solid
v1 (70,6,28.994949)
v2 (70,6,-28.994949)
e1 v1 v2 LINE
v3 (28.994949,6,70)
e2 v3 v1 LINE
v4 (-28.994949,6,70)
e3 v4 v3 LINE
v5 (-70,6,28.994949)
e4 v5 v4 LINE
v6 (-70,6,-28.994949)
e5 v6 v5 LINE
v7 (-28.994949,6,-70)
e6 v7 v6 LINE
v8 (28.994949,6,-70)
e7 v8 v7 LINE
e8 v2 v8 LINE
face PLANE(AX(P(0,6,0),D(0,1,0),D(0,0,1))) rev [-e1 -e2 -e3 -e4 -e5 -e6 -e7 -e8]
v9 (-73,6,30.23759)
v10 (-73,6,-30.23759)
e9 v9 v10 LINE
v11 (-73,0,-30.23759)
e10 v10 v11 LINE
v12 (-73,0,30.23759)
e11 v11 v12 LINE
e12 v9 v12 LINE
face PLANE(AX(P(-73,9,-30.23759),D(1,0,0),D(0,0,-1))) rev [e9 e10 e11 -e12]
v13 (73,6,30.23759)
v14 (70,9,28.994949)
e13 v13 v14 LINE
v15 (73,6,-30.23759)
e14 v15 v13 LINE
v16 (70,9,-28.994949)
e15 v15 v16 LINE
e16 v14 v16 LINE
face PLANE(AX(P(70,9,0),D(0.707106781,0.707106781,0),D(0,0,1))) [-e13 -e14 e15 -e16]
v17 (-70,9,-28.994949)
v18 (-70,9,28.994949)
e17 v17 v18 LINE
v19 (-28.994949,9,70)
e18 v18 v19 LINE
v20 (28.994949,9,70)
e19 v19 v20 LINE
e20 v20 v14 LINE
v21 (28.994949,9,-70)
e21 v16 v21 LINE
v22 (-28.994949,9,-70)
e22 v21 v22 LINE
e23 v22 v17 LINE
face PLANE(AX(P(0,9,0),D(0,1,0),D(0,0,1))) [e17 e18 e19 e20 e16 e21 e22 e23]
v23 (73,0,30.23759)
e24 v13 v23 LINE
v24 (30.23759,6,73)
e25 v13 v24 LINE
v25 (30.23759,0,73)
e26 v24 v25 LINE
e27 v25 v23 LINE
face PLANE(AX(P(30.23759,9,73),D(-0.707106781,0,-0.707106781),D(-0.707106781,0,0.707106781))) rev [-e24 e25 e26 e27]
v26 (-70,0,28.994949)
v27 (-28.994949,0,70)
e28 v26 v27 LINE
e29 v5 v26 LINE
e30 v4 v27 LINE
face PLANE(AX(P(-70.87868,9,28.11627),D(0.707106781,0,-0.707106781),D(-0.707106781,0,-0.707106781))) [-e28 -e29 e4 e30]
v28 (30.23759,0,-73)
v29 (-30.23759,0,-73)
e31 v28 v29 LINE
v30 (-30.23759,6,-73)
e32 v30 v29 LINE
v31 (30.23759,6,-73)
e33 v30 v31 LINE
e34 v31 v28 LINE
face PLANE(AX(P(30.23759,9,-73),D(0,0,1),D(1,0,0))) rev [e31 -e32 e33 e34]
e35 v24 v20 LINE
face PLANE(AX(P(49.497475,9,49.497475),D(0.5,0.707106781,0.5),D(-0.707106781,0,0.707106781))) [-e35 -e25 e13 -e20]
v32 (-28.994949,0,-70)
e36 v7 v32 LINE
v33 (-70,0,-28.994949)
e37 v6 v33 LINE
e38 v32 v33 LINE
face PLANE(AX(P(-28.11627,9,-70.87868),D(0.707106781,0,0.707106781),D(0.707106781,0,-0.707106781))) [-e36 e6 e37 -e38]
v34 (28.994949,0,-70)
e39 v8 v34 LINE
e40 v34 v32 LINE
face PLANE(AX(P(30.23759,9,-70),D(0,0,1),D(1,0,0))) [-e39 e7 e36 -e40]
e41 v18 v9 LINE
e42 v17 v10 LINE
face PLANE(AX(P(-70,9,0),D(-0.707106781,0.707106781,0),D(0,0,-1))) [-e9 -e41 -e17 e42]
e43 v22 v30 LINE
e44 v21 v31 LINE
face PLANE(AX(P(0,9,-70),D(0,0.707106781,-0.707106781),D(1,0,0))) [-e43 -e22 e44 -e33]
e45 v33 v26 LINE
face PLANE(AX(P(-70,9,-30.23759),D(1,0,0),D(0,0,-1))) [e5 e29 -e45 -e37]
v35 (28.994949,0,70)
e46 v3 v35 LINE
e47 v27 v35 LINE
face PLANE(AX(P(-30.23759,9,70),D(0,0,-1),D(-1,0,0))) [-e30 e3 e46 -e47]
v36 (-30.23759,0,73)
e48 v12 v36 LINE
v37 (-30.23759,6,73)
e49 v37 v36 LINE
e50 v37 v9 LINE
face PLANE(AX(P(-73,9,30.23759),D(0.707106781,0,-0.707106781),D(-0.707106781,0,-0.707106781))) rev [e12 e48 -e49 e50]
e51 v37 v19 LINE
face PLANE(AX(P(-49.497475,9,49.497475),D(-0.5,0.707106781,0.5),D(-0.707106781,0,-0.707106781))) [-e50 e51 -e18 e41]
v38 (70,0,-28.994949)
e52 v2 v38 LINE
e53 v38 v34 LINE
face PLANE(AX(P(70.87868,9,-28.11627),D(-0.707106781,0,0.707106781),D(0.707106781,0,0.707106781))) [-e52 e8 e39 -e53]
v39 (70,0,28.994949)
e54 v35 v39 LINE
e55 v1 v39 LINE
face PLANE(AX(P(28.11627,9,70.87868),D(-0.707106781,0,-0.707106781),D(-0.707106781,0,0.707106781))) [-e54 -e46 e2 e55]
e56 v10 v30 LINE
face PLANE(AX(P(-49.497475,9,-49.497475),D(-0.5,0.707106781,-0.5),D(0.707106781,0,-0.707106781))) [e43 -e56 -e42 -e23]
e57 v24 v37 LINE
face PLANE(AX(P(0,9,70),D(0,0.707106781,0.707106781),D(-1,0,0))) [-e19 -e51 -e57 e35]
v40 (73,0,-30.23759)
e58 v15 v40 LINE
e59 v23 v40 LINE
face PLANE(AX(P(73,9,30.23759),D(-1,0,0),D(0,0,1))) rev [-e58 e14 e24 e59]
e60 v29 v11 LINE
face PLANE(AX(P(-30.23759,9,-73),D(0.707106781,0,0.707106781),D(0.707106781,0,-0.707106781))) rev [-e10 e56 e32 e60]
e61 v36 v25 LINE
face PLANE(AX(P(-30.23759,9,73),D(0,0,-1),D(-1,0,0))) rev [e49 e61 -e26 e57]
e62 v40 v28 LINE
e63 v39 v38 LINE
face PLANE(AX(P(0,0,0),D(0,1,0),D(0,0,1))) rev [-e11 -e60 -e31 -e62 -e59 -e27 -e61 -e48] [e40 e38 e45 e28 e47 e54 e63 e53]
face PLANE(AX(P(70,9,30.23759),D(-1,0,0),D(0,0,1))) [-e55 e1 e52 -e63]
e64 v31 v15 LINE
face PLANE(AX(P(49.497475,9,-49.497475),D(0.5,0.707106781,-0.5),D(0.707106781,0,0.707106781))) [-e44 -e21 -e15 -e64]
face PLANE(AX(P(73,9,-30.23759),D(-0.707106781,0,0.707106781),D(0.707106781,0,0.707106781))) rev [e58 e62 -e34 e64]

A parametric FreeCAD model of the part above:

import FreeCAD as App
import Part
import Sketcher
Q = App.Units.Quantity


def edges_at(feature, points):
    """Names of the edges that pass closest to the given points."""
    edges = feature.Shape.Edges
    near = lambda p: min(range(len(edges)), key=lambda i: edges[i].distToShape(Part.Vertex(*p))[0])
    return sorted({f"Edge{near(p) + 1}" for p in points})


def faces_at(feature, points):
    """Names of the faces that lie closest to the given points."""
    faces = feature.Shape.Faces
    near = lambda p: min(range(len(faces)), key=lambda i: faces[i].distToShape(Part.Vertex(*p))[0])
    return sorted({f"Face{near(p) + 1}" for p in points})

doc = App.newDocument("Part")
params = doc.addObject("Spreadsheet::Sheet", "Params")
for row, (alias, value) in enumerate([
    ("pad1_length", "9 mm"),
    ("thickness_wall", "3 mm"),
    ("chamfer_size", "3 mm"),
], start=1):
    params.set(f"A{row}", alias)
    params.set(f"B{row}", "=" + value)
    params.setAlias(f"B{row}", alias)

body = doc.addObject("PartDesign::Body", "Body")

# Sketch on XZ plane
sketch1 = body.newObject("Sketcher::SketchObject", "Sketch")
sketch1.AttachmentSupport = (doc.getObject("XZ_Plane"), [""])
sketch1.MapMode = "FlatFace"
sketch1.addGeometry(Part.LineSegment(App.Vector(30, 73, 0), App.Vector(73, 30, 0)), False)
sketch1.addGeometry(Part.LineSegment(App.Vector(73, 30, 0), App.Vector(73, -30, 0)), False)
sketch1.addGeometry(Part.LineSegment(App.Vector(73, -30, 0), App.Vector(30, -73, 0)), False)
sketch1.addGeometry(Part.LineSegment(App.Vector(30, -73, 0), App.Vector(-30, -73, 0)), False)
sketch1.addGeometry(Part.LineSegment(App.Vector(-30, -73, 0), App.Vector(-73, -30, 0)), False)
sketch1.addGeometry(Part.LineSegment(App.Vector(-73, -30, 0), App.Vector(-73, 30, 0)), False)
sketch1.addGeometry(Part.LineSegment(App.Vector(-73, 30, 0), App.Vector(-30, 73, 0)), False)
sketch1.addGeometry(Part.LineSegment(App.Vector(-30, 73, 0), App.Vector(30, 73, 0)), False)
sketch1.addConstraint(Sketcher.Constraint("Coincident", 0, 2, 1, 1))
sketch1.addConstraint(Sketcher.Constraint("Coincident", 1, 2, 2, 1))
sketch1.addConstraint(Sketcher.Constraint("Coincident", 2, 2, 3, 1))
sketch1.addConstraint(Sketcher.Constraint("Coincident", 3, 2, 4, 1))
sketch1.addConstraint(Sketcher.Constraint("Coincident", 4, 2, 5, 1))
sketch1.addConstraint(Sketcher.Constraint("Coincident", 5, 2, 6, 1))
sketch1.addConstraint(Sketcher.Constraint("Coincident", 6, 2, 7, 1))
sketch1.addConstraint(Sketcher.Constraint("Coincident", 7, 2, 0, 1))
sketch1.addConstraint(Sketcher.Constraint("Vertical", 1))
sketch1.addConstraint(Sketcher.Constraint("Horizontal", 3))
sketch1.addConstraint(Sketcher.Constraint("Vertical", 5))
sketch1.addConstraint(Sketcher.Constraint("Horizontal", 7))
sketch1.addConstraint(Sketcher.Constraint("Symmetric", 0, 2, 4, 2, -1, 1))
sketch1.addConstraint(Sketcher.Constraint("Symmetric", 2, 2, 6, 2, -1, 1))
sketch1.addConstraint(Sketcher.Constraint("Perpendicular", 0, 2))
sketch1.addConstraint(Sketcher.Constraint("Perpendicular", 2, 4))
sketch1.addConstraint(Sketcher.Constraint("Perpendicular", 4, 6))
sketch1.addConstraint(Sketcher.Constraint("Horizontal", 1, 2, 4, 2))
sketch1.addConstraint(Sketcher.Constraint("Vertical", 3, 2, 6, 2))
sketch1.addConstraint(Sketcher.Constraint("Equal", 7, 1))
sketch1.addConstraint(Sketcher.Constraint("DistanceX", -1, 1, 0, 2, Q("73 mm")))
sketch1.addConstraint(Sketcher.Constraint("DistanceX", 3, 2, 3, 1, Q("60.47518 mm")))
pad1 = body.newObject("PartDesign::Pad", "Pad")
pad1.Profile = sketch1
pad1.setExpression("Length", "Params.pad1_length")
pad1.Reversed = True
doc.recompute()

thickness = body.newObject("PartDesign::Thickness", "Thickness")
thickness.Base = (pad1, faces_at(pad1, [(0, 0, 0)]))
thickness.setExpression("Value", "Params.thickness_wall")
thickness.Reversed = True
thickness.Join = "Intersection"
doc.recompute()

chamfer = body.newObject("PartDesign::Chamfer", "Chamfer")
chamfer.Base = (thickness, edges_at(thickness, [
    (73, 9, 0),
    (51.619, 9, -51.619),
    (0, 9, -73),
    (-51.619, 9, -51.619),
    (-73, 9, 0),
    (-51.619, 9, 51.619),
    (0, 9, 73),
    (51.619, 9, 51.619),
]))
chamfer.setExpression("Size", "Params.chamfer_size")

doc.recompute()
